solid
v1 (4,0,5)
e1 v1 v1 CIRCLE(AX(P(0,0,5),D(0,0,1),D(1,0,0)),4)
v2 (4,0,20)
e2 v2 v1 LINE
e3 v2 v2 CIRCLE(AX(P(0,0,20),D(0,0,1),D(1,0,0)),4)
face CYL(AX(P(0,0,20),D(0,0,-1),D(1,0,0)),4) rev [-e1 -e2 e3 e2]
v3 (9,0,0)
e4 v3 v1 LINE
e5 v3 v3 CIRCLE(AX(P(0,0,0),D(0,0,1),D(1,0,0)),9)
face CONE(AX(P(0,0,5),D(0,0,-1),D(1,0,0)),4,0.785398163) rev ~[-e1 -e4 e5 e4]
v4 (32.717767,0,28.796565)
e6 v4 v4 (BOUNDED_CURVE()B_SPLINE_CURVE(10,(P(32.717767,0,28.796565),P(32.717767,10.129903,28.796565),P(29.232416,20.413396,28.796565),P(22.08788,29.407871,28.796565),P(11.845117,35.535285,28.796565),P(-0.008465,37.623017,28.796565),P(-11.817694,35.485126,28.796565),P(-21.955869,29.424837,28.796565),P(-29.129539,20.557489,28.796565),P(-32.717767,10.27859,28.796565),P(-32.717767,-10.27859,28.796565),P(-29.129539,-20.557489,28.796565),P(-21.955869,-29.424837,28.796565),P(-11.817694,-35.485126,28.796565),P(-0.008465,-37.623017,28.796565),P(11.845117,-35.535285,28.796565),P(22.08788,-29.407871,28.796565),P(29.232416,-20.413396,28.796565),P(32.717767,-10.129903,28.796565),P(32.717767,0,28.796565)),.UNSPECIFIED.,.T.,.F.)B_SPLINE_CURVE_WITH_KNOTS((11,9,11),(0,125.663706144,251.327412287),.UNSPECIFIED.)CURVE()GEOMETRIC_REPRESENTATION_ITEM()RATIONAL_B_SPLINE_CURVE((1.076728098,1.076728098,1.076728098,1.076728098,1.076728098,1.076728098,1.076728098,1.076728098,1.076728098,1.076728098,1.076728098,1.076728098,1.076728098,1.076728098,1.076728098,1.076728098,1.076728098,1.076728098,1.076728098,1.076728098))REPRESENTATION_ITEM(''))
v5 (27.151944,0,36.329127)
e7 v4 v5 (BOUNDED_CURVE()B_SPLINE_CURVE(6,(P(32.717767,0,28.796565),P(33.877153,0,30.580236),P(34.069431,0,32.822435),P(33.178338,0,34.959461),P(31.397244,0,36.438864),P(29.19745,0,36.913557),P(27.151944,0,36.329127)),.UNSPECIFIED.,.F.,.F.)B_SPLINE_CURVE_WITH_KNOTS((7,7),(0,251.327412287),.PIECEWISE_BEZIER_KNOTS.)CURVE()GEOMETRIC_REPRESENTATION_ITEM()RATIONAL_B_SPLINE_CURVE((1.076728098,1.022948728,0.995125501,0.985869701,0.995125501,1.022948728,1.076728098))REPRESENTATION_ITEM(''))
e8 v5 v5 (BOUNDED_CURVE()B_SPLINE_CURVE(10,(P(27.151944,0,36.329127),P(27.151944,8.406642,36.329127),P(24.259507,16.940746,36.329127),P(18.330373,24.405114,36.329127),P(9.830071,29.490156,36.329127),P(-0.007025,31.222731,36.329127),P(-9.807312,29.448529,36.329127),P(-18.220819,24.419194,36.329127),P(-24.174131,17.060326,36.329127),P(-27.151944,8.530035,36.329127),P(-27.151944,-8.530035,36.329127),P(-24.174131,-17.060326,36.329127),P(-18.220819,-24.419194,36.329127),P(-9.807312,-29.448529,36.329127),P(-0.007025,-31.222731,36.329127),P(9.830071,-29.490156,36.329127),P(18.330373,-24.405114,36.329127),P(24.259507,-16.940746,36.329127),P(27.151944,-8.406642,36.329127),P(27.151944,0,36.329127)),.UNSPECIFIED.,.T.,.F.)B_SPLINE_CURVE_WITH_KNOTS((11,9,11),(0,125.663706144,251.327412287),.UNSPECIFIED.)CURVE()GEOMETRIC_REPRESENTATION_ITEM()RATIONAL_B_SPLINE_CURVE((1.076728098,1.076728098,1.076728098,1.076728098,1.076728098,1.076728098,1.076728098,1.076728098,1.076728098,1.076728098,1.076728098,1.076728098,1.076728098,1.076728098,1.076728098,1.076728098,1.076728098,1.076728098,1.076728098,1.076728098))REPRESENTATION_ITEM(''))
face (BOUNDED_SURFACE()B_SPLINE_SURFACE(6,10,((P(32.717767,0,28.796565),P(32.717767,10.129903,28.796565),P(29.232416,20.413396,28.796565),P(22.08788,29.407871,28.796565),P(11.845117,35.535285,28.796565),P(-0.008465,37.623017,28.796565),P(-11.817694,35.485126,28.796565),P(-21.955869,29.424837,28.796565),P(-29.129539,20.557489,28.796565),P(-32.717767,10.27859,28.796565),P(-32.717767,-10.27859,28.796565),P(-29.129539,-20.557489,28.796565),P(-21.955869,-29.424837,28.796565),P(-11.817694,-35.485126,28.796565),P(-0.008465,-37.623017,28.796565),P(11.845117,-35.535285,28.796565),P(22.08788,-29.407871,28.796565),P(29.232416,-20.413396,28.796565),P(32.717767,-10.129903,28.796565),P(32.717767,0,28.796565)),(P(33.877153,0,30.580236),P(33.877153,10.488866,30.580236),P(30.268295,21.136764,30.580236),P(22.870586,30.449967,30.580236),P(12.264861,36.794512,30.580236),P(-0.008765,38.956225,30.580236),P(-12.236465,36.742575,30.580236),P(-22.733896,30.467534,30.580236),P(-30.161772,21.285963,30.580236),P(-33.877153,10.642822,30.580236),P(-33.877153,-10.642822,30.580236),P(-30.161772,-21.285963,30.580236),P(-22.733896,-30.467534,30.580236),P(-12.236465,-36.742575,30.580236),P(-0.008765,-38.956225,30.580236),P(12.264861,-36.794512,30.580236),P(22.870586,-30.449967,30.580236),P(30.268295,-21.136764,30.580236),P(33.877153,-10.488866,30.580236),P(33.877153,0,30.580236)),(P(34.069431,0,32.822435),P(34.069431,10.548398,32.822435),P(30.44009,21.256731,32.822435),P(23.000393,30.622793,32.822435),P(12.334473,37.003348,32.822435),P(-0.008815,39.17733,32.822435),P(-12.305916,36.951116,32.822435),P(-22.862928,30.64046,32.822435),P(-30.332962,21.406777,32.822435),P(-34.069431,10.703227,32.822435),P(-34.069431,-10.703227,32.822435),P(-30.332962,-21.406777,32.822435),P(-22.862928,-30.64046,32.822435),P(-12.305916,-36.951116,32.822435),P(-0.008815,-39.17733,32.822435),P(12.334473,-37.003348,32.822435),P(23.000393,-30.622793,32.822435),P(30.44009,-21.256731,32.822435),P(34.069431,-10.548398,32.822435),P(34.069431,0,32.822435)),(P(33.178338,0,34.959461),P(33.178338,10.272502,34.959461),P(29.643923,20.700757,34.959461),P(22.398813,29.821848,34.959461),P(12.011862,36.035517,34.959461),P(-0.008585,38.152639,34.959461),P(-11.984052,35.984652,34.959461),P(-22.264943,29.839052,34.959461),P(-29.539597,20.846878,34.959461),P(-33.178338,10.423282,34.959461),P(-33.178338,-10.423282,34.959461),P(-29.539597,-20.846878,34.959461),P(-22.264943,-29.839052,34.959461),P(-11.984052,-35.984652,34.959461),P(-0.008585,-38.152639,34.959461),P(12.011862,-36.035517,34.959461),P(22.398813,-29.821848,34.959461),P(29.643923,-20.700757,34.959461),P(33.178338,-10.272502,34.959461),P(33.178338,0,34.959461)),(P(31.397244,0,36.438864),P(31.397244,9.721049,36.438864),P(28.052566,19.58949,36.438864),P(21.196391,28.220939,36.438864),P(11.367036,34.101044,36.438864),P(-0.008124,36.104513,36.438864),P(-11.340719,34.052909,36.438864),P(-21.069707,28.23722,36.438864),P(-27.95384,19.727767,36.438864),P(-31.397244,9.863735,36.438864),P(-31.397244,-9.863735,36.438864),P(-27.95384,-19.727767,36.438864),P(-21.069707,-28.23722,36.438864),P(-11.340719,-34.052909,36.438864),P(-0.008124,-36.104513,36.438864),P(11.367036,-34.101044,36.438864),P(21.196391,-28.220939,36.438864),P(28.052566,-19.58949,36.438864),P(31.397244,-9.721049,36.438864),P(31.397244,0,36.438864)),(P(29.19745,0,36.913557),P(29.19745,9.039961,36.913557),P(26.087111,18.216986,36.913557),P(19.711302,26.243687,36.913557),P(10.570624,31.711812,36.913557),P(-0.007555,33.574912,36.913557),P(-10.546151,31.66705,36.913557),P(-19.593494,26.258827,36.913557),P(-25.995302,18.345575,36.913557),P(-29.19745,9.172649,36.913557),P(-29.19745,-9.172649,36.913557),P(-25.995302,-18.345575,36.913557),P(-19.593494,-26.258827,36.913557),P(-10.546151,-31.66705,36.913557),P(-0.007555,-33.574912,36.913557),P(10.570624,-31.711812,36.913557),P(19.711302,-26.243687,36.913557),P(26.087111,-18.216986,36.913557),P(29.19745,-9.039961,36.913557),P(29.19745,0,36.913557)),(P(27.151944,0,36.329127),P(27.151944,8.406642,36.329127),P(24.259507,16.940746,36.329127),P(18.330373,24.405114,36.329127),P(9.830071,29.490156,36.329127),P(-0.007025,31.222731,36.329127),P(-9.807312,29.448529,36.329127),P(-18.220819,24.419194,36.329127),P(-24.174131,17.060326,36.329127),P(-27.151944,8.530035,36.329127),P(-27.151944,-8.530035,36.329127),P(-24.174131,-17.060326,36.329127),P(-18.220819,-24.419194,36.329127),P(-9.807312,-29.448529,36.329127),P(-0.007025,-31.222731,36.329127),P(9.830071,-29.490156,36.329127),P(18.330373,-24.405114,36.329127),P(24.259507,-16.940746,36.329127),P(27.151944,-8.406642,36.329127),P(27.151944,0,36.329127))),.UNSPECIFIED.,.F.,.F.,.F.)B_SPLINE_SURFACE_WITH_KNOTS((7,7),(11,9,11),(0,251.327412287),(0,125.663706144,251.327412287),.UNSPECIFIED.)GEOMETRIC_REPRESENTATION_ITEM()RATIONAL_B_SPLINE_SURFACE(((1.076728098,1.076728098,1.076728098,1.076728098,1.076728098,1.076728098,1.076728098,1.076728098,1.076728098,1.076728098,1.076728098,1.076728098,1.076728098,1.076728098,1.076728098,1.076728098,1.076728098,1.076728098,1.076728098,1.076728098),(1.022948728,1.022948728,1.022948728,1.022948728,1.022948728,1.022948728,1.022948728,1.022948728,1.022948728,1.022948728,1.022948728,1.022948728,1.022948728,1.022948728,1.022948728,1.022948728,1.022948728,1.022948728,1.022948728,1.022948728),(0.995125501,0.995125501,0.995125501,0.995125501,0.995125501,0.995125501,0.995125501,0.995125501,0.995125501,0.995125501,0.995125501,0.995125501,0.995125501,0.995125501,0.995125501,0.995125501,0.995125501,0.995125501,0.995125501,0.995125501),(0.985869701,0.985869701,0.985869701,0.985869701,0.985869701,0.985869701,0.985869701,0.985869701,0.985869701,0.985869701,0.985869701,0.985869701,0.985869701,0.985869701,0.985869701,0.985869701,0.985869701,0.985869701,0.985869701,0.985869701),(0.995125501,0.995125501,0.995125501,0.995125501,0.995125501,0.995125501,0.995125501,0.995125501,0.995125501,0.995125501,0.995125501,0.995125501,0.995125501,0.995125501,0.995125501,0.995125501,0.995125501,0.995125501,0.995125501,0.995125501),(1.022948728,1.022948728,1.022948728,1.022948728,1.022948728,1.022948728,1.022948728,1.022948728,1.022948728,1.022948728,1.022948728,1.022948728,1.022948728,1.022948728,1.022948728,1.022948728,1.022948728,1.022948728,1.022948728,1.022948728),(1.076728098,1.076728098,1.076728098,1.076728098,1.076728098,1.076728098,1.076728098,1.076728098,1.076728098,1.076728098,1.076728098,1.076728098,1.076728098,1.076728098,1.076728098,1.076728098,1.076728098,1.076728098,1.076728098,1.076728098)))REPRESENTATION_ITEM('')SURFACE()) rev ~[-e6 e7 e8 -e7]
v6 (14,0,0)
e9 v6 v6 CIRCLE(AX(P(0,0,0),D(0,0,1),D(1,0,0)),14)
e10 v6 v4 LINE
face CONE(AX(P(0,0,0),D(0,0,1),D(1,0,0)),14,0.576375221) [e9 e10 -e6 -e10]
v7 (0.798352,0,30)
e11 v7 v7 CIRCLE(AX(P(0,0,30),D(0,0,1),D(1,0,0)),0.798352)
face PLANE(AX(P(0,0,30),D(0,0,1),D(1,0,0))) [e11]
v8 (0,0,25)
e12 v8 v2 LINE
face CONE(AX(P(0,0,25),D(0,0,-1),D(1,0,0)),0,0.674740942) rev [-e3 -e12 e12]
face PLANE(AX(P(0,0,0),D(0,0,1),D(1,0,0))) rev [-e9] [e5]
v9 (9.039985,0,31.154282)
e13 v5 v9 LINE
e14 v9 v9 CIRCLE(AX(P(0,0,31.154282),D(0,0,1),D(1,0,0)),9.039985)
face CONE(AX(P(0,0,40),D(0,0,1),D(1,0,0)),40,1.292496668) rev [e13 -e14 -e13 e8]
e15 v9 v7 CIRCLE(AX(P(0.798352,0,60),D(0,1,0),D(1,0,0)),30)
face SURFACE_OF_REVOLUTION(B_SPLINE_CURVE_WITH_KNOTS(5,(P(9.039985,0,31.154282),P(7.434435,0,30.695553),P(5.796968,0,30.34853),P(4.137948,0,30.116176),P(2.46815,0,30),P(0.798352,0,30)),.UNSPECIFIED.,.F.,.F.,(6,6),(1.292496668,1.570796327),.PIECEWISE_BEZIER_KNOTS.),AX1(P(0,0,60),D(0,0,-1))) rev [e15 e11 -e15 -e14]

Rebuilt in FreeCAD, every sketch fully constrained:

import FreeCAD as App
import Part
import Sketcher
Q = App.Units.Quantity


def edges_at(feature, points):
    """Names of the edges that pass closest to the given points."""
    edges = feature.Shape.Edges
    near = lambda p: min(range(len(edges)), key=lambda i: edges[i].distToShape(Part.Vertex(*p))[0])
    return sorted({f"Edge{near(p) + 1}" for p in points})

doc = App.newDocument("Part")
body = doc.addObject("PartDesign::Body", "Body")

# Sketch on XZ plane
sketch1 = body.newObject("Sketcher::SketchObject", "Sketch")
sketch1.AttachmentSupport = (doc.getObject("XZ_Plane"), [""])
sketch1.MapMode = "FlatFace"
sketch1.addGeometry(Part.LineSegment(App.Vector(4, 20, 0), App.Vector(4, 0, 0)), False)
sketch1.addGeometry(Part.LineSegment(App.Vector(4, 0, 0), App.Vector(14, 0, 0)), False)
sketch1.addGeometry(Part.LineSegment(App.Vector(14, 0, 0), App.Vector(40, 40, 0)), False)
sketch1.addGeometry(Part.LineSegment(App.Vector(40, 40, 0), App.Vector(5, 30, 0)), False)
sketch1.addGeometry(Part.LineSegment(App.Vector(5, 30, 0), App.Vector(0, 30, 0)), False)
sketch1.addGeometry(Part.LineSegment(App.Vector(0, 30, 0), App.Vector(0, 25, 0)), False)
sketch1.addGeometry(Part.LineSegment(App.Vector(0, 25, 0), App.Vector(4, 20, 0)), False)
sketch1.addConstraint(Sketcher.Constraint("Coincident", 0, 2, 1, 1))
sketch1.addConstraint(Sketcher.Constraint("Coincident", 1, 2, 2, 1))
sketch1.addConstraint(Sketcher.Constraint("Coincident", 2, 2, 3, 1))
sketch1.addConstraint(Sketcher.Constraint("Coincident", 3, 2, 4, 1))
sketch1.addConstraint(Sketcher.Constraint("Coincident", 4, 2, 5, 1))
sketch1.addConstraint(Sketcher.Constraint("Coincident", 5, 2, 6, 1))
sketch1.addConstraint(Sketcher.Constraint("Coincident", 6, 2, 0, 1))
sketch1.addConstraint(Sketcher.Constraint("Vertical", 0))
sketch1.addConstraint(Sketcher.Constraint("Horizontal", 1))
sketch1.addConstraint(Sketcher.Constraint("Horizontal", 4))
sketch1.addConstraint(Sketcher.Constraint("Vertical", 5))
sketch1.addConstraint(Sketcher.Constraint("PointOnObject", 0, 2, -1))
sketch1.addConstraint(Sketcher.Constraint("PointOnObject", 4, 2, -2))
sketch1.addConstraint(Sketcher.Constraint("Equal", 4, 5))
sketch1.addConstraint(Sketcher.Constraint("DistanceX", 1, 1, 1, 2, Q("10 mm")))
sketch1.addConstraint(Sketcher.Constraint("DistanceX", 4, 2, 4, 1, Q("5 mm")))
sketch1.addConstraint(Sketcher.Constraint("DistanceY", 0, 2, 0, 1, Q("20 mm")))
sketch1.addConstraint(Sketcher.Constraint("DistanceX", -1, 1, 0, 2, Q("4 mm")))
sketch1.addConstraint(Sketcher.Constraint("DistanceX", -1, 1, 2, 2, Q("40 mm")))
sketch1.addConstraint(Sketcher.Constraint("DistanceY", -1, 1, 2, 2, Q("40 mm")))
sketch1.addConstraint(Sketcher.Constraint("DistanceY", -1, 1, 3, 2, Q("30 mm")))
revolution = body.newObject("PartDesign::Revolution", "Revolution")
revolution.Profile = sketch1
revolution.ReferenceAxis = (sketch1, ["V_Axis"])
revolution.Angle = 360
doc.recompute()

fillet = body.newObject("PartDesign::Fillet", "Fillet")
fillet.Base = (revolution, edges_at(revolution, [(-40, 0, 40)]))
fillet.Radius = 5
doc.recompute()

fillet2 = body.newObject("PartDesign::Fillet", "Fillet001")
fillet2.Base = (fillet, edges_at(fillet, [(-5, 0, 30)]))
fillet2.Radius = 30
doc.recompute()

chamfer = body.newObject("PartDesign::Chamfer", "Chamfer")
chamfer.Base = (fillet2, edges_at(fillet2, [(-4, 0, 0)]))
chamfer.Size = 5

doc.recompute()
